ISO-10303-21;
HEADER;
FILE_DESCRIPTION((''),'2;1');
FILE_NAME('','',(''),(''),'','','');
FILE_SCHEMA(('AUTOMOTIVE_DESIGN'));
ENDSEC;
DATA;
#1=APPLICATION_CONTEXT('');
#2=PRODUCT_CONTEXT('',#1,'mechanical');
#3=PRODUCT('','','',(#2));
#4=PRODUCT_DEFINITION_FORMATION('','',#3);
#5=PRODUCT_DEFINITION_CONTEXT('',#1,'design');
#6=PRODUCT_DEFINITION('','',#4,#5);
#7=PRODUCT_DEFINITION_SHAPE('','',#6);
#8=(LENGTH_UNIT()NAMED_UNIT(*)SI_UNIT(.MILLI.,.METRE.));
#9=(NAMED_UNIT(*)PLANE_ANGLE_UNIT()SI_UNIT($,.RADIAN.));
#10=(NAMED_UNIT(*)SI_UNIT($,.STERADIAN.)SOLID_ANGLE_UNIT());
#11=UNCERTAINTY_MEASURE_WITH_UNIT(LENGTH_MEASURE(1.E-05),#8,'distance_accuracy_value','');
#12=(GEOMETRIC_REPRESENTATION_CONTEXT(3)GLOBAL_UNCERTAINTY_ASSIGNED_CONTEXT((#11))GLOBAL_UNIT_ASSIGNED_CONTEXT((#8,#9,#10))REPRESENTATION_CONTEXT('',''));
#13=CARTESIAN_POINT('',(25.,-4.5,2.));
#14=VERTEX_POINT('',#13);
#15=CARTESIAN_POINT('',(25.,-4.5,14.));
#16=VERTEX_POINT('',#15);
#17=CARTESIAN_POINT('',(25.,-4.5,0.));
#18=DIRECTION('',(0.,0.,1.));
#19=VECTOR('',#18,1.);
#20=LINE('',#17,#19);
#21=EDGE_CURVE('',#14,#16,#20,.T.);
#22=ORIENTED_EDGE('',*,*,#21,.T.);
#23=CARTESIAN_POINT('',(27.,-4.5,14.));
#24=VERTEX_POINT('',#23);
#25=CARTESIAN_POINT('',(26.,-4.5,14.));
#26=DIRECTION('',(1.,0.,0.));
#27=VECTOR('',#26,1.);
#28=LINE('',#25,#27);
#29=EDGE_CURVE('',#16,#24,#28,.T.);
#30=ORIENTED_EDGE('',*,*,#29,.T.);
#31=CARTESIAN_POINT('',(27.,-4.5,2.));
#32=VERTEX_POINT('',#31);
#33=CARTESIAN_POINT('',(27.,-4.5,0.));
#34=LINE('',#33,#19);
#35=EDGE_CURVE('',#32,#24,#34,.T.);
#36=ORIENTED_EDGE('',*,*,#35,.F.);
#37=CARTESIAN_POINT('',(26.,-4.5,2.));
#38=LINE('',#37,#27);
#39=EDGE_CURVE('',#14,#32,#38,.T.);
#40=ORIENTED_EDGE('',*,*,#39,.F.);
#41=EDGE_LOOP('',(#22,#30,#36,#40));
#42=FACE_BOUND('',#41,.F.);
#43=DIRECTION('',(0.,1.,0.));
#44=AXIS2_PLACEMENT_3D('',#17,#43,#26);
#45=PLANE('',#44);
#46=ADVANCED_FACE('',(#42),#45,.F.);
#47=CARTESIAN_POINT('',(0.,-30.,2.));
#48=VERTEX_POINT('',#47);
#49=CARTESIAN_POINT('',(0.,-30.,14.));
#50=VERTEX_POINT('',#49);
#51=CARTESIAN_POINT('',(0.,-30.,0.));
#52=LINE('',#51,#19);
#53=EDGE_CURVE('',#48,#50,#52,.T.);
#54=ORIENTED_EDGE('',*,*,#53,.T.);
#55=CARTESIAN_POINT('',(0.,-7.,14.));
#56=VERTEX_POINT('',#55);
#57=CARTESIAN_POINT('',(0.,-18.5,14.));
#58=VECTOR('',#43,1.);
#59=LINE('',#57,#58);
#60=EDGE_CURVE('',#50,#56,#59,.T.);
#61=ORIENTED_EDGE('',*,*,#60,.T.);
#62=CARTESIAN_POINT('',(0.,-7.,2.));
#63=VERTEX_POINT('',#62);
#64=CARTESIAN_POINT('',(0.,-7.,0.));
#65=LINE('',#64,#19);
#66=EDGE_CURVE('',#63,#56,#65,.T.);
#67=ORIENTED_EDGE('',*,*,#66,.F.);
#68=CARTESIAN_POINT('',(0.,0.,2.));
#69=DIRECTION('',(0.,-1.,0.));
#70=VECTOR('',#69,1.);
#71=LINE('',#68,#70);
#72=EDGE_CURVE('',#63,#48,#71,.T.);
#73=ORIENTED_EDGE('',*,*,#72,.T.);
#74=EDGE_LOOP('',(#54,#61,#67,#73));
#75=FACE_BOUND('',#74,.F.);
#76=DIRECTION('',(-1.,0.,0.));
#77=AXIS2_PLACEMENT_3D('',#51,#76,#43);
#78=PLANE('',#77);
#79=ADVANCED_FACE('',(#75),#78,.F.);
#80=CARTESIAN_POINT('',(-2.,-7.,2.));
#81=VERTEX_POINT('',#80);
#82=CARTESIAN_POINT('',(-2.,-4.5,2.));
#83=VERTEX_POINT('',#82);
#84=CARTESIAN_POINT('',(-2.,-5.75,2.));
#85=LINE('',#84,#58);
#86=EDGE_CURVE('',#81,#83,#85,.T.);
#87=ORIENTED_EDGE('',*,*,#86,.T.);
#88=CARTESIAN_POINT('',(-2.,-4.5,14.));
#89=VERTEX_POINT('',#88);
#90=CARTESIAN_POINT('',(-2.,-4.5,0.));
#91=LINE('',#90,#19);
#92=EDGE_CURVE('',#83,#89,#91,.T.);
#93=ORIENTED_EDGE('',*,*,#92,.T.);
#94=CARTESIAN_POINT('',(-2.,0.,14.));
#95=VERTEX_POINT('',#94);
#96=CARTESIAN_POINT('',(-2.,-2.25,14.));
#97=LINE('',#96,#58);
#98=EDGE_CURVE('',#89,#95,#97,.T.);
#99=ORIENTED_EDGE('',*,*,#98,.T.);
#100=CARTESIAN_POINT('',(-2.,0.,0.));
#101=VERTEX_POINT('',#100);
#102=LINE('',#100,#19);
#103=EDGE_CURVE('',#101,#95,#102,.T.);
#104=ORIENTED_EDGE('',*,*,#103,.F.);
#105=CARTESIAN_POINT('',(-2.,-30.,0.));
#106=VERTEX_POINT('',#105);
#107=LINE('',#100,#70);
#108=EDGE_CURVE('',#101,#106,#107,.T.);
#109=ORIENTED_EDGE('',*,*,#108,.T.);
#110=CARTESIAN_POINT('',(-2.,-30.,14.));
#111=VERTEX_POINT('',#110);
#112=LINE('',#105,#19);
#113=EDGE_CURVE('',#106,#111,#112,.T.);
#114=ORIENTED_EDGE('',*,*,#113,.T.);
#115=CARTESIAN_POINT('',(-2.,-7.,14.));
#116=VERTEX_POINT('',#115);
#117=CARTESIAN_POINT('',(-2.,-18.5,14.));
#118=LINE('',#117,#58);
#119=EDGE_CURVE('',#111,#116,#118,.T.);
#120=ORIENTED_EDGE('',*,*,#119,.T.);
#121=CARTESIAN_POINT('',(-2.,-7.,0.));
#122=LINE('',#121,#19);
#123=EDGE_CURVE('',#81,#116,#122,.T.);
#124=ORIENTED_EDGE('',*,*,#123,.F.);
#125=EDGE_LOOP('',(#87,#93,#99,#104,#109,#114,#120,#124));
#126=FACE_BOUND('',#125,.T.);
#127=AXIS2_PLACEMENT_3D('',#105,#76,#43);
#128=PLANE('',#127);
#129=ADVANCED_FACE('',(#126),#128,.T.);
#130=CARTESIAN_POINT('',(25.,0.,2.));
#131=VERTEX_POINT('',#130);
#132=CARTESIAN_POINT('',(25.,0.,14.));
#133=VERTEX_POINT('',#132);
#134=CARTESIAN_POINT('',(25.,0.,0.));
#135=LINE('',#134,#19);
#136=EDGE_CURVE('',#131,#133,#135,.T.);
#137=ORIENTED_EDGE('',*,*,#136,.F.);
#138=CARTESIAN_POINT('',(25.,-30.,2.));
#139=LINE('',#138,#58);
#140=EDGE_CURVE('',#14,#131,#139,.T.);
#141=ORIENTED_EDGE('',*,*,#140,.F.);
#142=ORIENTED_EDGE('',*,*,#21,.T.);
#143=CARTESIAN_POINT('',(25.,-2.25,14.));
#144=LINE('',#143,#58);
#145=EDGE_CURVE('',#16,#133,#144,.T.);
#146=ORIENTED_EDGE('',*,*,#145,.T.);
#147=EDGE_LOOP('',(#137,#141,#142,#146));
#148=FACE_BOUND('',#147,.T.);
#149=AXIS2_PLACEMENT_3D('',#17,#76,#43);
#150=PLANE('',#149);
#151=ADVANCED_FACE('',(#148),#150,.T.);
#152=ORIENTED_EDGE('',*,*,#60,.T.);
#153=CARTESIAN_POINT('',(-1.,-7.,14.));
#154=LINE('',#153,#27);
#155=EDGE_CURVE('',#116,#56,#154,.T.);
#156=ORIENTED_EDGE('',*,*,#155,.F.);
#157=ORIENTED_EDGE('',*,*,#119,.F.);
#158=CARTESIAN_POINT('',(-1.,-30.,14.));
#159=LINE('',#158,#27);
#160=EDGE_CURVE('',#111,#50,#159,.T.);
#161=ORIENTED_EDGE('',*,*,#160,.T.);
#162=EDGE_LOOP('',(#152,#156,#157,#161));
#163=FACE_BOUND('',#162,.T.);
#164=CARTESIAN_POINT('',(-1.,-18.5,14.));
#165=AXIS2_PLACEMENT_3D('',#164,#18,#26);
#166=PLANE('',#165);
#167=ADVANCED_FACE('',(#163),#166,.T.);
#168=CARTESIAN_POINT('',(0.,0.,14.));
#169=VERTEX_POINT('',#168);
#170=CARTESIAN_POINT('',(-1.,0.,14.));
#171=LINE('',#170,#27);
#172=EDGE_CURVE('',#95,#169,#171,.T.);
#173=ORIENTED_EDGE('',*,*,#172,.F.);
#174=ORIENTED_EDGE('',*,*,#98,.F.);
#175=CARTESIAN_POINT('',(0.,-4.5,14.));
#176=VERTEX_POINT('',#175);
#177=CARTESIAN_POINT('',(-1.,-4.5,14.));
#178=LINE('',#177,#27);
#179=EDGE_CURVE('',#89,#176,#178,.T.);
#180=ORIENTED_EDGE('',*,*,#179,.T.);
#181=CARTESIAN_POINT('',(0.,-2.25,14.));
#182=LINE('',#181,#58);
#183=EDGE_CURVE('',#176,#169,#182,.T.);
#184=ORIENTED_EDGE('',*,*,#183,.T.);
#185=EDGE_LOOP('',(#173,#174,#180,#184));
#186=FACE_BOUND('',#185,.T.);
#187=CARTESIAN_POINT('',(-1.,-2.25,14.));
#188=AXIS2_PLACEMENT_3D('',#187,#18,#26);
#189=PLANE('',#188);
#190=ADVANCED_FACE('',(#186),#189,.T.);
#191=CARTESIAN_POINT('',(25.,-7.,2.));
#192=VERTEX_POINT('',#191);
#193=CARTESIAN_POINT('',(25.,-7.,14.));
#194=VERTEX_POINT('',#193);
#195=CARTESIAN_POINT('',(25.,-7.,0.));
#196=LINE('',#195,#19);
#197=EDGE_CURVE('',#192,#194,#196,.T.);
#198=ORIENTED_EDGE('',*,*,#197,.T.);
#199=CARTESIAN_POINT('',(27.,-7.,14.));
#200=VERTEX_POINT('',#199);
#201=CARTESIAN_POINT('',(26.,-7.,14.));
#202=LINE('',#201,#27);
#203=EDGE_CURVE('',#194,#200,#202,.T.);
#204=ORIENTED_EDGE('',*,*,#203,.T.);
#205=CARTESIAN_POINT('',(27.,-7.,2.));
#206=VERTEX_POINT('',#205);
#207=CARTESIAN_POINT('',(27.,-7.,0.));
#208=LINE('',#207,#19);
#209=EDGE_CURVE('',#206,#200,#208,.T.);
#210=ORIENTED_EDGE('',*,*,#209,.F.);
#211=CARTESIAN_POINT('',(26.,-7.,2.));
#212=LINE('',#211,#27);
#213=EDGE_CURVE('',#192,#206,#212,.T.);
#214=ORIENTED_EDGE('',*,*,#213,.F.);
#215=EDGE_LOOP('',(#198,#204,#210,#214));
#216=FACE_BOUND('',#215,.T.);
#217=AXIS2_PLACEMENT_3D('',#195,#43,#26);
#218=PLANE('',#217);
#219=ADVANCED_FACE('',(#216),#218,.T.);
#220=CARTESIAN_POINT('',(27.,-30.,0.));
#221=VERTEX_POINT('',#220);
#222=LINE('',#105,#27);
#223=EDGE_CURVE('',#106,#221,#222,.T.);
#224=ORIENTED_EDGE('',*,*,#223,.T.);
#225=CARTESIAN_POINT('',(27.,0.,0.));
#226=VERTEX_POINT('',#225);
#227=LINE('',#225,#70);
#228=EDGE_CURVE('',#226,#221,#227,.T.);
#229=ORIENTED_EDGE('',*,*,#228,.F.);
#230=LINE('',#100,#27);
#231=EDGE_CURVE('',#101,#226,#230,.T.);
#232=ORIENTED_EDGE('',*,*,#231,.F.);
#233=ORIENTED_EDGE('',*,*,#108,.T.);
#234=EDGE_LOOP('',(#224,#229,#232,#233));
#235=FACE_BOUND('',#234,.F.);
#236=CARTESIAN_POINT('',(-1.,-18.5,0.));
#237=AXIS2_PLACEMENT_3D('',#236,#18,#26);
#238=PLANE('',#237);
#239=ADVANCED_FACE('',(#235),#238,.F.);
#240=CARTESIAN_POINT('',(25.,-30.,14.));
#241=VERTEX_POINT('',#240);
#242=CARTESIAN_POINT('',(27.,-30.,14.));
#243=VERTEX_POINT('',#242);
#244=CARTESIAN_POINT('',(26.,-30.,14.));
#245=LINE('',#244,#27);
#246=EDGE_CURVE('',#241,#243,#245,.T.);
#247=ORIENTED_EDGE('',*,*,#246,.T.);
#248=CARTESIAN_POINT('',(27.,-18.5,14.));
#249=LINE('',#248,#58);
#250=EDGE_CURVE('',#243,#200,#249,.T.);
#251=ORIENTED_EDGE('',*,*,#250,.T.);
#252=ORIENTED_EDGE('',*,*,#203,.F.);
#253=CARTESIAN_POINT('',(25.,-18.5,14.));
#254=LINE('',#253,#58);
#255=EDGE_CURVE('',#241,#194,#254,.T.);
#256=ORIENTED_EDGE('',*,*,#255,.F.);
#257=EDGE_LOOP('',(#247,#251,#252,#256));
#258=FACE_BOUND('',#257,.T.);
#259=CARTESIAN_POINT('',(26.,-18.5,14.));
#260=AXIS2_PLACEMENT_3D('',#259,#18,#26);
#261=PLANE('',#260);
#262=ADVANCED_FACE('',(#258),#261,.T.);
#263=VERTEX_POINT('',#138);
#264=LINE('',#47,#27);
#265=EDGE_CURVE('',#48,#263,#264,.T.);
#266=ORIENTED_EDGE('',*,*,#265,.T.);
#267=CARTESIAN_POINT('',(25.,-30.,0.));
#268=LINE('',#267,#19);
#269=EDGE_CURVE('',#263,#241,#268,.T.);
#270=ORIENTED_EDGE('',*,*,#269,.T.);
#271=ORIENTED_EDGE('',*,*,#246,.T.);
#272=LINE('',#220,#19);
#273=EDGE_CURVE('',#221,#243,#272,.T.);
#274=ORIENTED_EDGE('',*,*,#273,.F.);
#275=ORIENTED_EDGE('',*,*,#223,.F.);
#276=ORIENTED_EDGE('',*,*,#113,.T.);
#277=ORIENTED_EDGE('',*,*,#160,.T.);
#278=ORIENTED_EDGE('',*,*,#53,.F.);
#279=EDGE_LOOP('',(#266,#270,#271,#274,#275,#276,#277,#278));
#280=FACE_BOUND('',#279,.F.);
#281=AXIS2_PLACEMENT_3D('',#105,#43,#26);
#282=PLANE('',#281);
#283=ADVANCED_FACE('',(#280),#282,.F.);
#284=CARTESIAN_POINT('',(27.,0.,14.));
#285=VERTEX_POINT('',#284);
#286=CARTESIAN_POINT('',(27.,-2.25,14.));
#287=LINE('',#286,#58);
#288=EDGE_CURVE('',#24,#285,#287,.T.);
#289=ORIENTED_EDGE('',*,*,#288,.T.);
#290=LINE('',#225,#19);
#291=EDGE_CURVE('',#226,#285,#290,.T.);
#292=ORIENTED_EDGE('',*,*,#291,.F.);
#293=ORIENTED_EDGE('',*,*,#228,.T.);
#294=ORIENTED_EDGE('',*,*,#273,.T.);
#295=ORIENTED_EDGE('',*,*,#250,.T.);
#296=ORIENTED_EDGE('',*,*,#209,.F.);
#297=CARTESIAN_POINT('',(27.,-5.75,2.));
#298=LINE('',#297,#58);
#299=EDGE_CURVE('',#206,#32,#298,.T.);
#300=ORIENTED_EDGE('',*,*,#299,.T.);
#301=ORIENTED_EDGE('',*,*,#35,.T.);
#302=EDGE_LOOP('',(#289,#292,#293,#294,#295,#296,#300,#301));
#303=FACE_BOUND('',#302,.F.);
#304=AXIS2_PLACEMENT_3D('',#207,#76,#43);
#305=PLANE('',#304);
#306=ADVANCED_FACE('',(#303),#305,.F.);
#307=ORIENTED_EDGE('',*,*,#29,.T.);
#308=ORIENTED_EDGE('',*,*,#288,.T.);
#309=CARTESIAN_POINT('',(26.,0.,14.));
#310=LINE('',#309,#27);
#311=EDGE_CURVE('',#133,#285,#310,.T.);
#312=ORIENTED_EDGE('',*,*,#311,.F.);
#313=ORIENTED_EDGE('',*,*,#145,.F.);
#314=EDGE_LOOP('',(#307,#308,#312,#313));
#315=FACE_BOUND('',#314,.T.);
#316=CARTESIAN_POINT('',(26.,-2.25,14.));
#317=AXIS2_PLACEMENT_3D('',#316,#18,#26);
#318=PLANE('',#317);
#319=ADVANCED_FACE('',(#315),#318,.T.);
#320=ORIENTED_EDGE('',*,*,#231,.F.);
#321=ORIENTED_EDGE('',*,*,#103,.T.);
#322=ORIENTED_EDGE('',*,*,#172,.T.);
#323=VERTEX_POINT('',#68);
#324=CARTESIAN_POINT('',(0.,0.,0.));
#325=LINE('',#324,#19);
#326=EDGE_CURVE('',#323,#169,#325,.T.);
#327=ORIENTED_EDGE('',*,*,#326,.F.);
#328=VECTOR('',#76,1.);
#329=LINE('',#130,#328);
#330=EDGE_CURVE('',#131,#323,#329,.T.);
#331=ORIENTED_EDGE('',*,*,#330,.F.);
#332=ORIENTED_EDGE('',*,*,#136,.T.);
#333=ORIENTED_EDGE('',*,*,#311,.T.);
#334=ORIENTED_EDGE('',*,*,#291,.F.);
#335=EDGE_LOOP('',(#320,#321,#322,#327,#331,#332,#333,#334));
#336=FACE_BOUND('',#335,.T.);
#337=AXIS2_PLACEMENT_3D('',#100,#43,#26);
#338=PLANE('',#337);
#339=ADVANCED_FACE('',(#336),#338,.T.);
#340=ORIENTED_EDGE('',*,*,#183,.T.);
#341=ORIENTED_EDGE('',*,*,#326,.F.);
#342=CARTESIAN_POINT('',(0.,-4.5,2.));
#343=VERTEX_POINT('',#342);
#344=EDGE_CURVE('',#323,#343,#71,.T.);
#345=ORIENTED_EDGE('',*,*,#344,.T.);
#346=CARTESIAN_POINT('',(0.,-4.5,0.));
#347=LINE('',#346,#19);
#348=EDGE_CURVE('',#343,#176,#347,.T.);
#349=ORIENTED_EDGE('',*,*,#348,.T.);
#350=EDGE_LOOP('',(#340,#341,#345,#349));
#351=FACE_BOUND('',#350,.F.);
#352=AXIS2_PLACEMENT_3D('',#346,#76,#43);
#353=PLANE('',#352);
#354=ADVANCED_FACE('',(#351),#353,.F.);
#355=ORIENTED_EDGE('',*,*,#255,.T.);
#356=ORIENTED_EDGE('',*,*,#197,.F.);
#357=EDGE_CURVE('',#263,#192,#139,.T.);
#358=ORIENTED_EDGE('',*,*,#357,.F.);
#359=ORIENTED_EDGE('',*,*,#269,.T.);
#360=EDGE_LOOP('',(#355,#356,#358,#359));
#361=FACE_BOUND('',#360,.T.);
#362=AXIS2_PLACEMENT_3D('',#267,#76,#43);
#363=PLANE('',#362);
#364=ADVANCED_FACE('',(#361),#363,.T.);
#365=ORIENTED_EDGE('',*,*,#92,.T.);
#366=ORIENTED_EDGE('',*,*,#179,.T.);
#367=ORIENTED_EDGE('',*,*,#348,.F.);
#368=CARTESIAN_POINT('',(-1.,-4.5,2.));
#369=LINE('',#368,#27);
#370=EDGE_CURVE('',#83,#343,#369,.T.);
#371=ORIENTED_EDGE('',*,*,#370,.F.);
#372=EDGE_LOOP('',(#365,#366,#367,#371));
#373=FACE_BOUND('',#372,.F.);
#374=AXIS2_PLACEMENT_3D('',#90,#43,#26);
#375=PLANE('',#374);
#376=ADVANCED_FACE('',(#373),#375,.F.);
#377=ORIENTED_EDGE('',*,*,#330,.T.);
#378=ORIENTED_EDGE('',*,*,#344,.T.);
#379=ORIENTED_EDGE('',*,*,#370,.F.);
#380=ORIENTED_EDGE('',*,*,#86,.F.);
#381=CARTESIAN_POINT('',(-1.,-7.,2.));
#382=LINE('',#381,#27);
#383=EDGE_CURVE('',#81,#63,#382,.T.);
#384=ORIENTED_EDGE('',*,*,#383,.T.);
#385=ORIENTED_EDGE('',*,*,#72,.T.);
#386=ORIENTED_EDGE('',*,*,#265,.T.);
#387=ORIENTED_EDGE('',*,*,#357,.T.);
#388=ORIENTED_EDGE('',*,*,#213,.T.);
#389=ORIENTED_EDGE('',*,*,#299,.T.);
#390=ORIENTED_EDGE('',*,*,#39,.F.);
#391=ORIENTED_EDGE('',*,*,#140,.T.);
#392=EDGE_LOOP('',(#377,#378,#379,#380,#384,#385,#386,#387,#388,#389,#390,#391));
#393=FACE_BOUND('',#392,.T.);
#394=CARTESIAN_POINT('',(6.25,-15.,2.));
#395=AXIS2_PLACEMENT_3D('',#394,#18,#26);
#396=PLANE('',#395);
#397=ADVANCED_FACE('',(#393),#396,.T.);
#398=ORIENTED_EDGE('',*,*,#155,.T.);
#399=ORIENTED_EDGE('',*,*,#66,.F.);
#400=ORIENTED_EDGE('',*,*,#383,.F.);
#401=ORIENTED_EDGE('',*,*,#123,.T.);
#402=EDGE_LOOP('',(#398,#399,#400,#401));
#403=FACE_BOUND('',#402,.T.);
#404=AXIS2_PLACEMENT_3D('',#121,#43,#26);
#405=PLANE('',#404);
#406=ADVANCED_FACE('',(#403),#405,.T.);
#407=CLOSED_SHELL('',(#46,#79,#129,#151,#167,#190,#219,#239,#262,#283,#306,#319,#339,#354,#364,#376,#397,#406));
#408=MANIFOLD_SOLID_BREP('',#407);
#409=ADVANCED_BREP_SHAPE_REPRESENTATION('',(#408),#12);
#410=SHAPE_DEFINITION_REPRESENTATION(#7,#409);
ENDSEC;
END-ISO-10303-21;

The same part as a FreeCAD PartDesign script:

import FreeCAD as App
import Part
import Sketcher


def add_polygon(sketch, points):
    """Adds a closed chain of lines whose ends are joined by coincident constraints."""
    first, n = sketch.GeometryCount, len(points)
    for a, b in zip(points, points[1:] + points[:1]):
        sketch.addGeometry(Part.LineSegment(App.Vector(*a, 0), App.Vector(*b, 0)), False)
    for i in range(n):
        sketch.addConstraint(Sketcher.Constraint("Coincident", first + i, 2, first + (i + 1) % n, 1))

doc = App.newDocument("Part")
body = doc.addObject("PartDesign::Body", "Body")

# Sketch on XY plane
sketch1 = body.newObject("Sketcher::SketchObject", "Sketch")
sketch1.AttachmentSupport = (doc.getObject("XY_Plane"), [""])
sketch1.MapMode = "FlatFace"
add_polygon(sketch1, [(0, 0), (0, -4.5), (-2, -4.5), (-2, -7), (0, -7), (0, -30), (25, -30), (25, -7), (27, -7), (27, -4.5), (25, -4.5), (25, 0)])  # lines 0-11
sketch1.addConstraint([
    Sketcher.Constraint("Vertical", 0),
    Sketcher.Constraint("Horizontal", 1),
    Sketcher.Constraint("Vertical", 2),
    Sketcher.Constraint("Horizontal", 3),
    Sketcher.Constraint("Vertical", 4),
    Sketcher.Constraint("Horizontal", 5),
    Sketcher.Constraint("Vertical", 6),
    Sketcher.Constraint("Horizontal", 7),
    Sketcher.Constraint("Vertical", 8),
    Sketcher.Constraint("Horizontal", 9),
    Sketcher.Constraint("Vertical", 10),
    Sketcher.Constraint("Horizontal", 11),
    Sketcher.Constraint("Coincident", 11, 2, -1, 1),
    Sketcher.Constraint("PointOnObject", 3, 2, -2),
    Sketcher.Constraint("Horizontal", 3, 2, 6, 2),
    Sketcher.Constraint("Horizontal", 1, 2, 8, 2),
    Sketcher.Constraint("Vertical", 6, 2, 9, 2),
    Sketcher.Constraint("Equal", 3, 7),
    Sketcher.Constraint("DistanceX", 1, 2, 1, 1, 2.0),
    Sketcher.Constraint("DistanceX", 5, 1, 5, 2, 25.0),
    Sketcher.Constraint("DistanceY", 4, 2, 4, 1, 23.0),
    Sketcher.Constraint("DistanceY", 0, 2, 0, 1, 4.5),
    Sketcher.Constraint("DistanceY", 2, 2, 2, 1, 2.5),
])
pad1 = body.newObject("PartDesign::Pad", "Pad")
pad1.Profile = sketch1
pad1.Length = 2

# Sketch on XY plane
sketch2 = body.newObject("Sketcher::SketchObject", "Sketch001")
sketch2.AttachmentSupport = (doc.getObject("XY_Plane"), [""])
sketch2.MapMode = "FlatFace"
add_polygon(sketch2, [(-2, -7), (-2, -30), (0, -30), (0, -7)])  # lines 0-3
add_polygon(sketch2, [(-2, 0), (-2, -4.5), (0, -4.5), (0, 0)])  # lines 4-7
add_polygon(sketch2, [(25, 0), (25, -4.5), (27, -4.5), (27, 0)])  # lines 8-11
add_polygon(sketch2, [(25, -7), (25, -30), (27, -30), (27, -7)])  # lines 12-15
sketch2.addConstraint([
    Sketcher.Constraint("Vertical", 0),
    Sketcher.Constraint("Horizontal", 1),
    Sketcher.Constraint("Vertical", 2),
    Sketcher.Constraint("Horizontal", 3),
    Sketcher.Constraint("Vertical", 4),
    Sketcher.Constraint("Horizontal", 5),
    Sketcher.Constraint("Vertical", 6),
    Sketcher.Constraint("Horizontal", 7),
    Sketcher.Constraint("Vertical", 8),
    Sketcher.Constraint("Horizontal", 9),
    Sketcher.Constraint("Vertical", 10),
    Sketcher.Constraint("Horizontal", 11),
    Sketcher.Constraint("Vertical", 12),
    Sketcher.Constraint("Horizontal", 13),
    Sketcher.Constraint("Vertical", 14),
    Sketcher.Constraint("Horizontal", 15),
    Sketcher.Constraint("Coincident", 6, 2, -1, 1),
    Sketcher.Constraint("PointOnObject", 1, 2, -2),
    Sketcher.Constraint("PointOnObject", 10, 2, -1),
    Sketcher.Constraint("Horizontal", 5, 2, 8, 2),
    Sketcher.Constraint("Horizontal", 1, 2, 12, 2),
    Sketcher.Constraint("Horizontal", 3, 2, 14, 2),
    Sketcher.Constraint("Vertical", 3, 2, 4, 2),
    Sketcher.Constraint("Vertical", 11, 2, 12, 2),
    Sketcher.Constraint("Vertical", 10, 2, 13, 2),
    Sketcher.Constraint("Equal", 7, 9),
    Sketcher.Constraint("DistanceX", 1, 1, 1, 2, 2.0),
    Sketcher.Constraint("DistanceY", 0, 2, 0, 1, 23.0),
    Sketcher.Constraint("DistanceY", 4, 2, 4, 1, 4.5),
    Sketcher.Constraint("DistanceY", 0, 2, -1, 1, 30.0),
    Sketcher.Constraint("DistanceX", -1, 1, 8, 2, 25.0),
])
pad2 = body.newObject("PartDesign::Pad", "Pad001")
pad2.Profile = sketch2
pad2.Length = 14

doc.recompute()
